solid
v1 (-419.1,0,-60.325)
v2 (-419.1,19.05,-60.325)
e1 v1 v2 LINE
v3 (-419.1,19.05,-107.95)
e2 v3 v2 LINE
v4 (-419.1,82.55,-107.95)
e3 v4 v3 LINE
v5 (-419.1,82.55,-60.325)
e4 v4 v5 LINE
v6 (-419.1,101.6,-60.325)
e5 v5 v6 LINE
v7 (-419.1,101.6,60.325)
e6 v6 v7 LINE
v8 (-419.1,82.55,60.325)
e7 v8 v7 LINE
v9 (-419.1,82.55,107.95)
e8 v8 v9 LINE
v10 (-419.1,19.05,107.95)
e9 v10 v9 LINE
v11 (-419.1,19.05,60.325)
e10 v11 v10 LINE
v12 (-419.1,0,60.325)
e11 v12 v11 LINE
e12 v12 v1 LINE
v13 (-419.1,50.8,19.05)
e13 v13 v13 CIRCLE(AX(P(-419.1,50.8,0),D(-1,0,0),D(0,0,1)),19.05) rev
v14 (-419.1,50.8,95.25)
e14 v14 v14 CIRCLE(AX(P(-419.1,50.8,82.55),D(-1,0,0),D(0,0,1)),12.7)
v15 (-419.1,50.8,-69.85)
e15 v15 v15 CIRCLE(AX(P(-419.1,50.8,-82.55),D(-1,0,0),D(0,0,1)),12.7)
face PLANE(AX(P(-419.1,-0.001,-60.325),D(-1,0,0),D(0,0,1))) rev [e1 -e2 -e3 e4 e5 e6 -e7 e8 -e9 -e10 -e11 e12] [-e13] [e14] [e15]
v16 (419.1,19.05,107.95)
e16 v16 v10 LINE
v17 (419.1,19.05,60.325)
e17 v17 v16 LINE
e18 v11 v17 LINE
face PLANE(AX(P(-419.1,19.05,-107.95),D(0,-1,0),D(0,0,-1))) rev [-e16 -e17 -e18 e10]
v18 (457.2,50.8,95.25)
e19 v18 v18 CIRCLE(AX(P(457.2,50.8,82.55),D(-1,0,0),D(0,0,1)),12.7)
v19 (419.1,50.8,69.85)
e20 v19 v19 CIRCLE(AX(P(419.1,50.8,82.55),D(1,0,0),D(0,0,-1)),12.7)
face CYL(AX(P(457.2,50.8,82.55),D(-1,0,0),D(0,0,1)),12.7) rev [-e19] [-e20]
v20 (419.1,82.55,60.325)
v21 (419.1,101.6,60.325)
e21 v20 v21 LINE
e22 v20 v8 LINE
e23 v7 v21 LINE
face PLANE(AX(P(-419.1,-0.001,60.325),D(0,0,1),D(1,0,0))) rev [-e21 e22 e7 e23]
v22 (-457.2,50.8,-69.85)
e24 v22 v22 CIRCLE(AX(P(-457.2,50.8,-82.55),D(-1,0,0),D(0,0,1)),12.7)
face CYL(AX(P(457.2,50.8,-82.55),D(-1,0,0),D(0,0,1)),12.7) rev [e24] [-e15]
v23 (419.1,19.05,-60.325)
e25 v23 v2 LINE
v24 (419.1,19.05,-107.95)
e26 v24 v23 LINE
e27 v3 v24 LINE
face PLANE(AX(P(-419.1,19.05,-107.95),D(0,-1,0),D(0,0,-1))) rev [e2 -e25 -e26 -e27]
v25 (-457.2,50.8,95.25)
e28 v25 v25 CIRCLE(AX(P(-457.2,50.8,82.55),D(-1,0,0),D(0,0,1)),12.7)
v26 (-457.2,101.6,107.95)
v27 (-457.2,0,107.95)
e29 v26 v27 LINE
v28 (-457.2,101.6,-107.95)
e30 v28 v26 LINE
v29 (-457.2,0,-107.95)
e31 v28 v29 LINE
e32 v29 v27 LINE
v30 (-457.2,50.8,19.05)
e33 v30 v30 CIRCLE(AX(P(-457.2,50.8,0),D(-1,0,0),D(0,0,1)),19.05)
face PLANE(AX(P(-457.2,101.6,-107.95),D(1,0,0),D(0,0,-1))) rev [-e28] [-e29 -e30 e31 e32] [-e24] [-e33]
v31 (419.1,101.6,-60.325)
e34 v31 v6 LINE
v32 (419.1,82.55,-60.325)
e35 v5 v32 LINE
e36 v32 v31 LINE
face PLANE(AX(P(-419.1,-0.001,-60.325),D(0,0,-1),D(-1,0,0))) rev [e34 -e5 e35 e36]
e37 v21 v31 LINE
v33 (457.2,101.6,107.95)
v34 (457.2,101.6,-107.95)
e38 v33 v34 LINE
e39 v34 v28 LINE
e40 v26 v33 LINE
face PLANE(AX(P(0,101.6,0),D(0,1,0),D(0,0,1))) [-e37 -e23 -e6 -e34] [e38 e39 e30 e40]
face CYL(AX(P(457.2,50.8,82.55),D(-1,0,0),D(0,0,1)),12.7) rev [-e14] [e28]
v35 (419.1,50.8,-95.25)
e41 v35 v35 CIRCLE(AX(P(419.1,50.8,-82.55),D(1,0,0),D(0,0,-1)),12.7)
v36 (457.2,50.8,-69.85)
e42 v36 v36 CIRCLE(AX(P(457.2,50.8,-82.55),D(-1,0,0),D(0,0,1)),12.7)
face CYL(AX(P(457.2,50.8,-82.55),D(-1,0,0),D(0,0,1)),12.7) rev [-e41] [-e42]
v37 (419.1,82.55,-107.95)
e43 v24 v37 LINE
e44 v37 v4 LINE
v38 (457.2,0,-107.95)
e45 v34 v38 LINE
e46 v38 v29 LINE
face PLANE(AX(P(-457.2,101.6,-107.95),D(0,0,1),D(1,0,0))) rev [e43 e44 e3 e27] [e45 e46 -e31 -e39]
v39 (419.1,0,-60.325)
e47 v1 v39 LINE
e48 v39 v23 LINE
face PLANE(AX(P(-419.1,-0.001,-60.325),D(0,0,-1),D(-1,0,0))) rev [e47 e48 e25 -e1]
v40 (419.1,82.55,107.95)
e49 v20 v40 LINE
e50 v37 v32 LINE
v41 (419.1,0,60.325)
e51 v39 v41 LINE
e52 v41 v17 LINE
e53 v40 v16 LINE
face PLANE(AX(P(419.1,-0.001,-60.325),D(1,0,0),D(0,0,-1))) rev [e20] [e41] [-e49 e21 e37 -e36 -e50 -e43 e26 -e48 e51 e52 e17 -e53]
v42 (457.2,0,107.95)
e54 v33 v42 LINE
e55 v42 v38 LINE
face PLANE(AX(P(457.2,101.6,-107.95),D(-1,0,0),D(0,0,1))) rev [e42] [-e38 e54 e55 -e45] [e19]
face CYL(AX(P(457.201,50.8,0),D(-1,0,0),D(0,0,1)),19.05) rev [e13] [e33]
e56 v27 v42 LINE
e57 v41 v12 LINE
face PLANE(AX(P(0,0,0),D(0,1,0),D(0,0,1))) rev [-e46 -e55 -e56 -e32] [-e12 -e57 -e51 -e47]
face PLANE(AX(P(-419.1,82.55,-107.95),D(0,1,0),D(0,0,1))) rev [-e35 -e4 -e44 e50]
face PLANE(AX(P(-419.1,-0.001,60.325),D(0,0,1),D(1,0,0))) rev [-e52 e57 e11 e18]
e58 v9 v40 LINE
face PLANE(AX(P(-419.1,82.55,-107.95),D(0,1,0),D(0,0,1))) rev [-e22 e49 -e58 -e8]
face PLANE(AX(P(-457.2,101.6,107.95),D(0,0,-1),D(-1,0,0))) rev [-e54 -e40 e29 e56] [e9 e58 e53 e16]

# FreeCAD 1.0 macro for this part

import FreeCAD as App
import Part
import Sketcher

V = App.Vector
Q = App.Units.Quantity


def add_polygon(sketch, points):
    """Adds a closed chain of lines whose ends are joined by coincident constraints."""
    first, n = sketch.GeometryCount, len(points)
    for a, b in zip(points, points[1:] + points[:1]):
        sketch.addGeometry(Part.LineSegment(App.Vector(*a, 0), App.Vector(*b, 0)), False)
    for i in range(n):
        sketch.addConstraint(Sketcher.Constraint("Coincident", first + i, 2, first + (i + 1) % n, 1))

doc = App.newDocument("Part")
body = doc.addObject("PartDesign::Body", "Body")

sketch1 = body.newObject("Sketcher::SketchObject", "Sketch")
sketch1.AttachmentSupport = (doc.getObject("XZ_Plane"), [""])
sketch1.MapMode = "FlatFace"
add_polygon(sketch1, [(-457, -108), (-457, 108), (457, 108), (457, -108)])
sketch1.addConstraint([
    Sketcher.Constraint("Vertical", 0),
    Sketcher.Constraint("Horizontal", 1),
    Sketcher.Constraint("Vertical", 2),
    Sketcher.Constraint("Horizontal", 3),
    Sketcher.Constraint("Symmetric", 0, 2, 2, 2, -1, 1),
    Sketcher.Constraint("DistanceX", 1, 1, 1, 2, Q("36 in")),
    Sketcher.Constraint("DistanceY", 0, 1, 0, 2, Q("8.5 in")),
])
pad1 = body.newObject("PartDesign::Pad", "Pad")
pad1.Profile = sketch1
pad1.Length = Q("4 in")
pad1.Reversed = True

sketch2 = body.newObject("Sketcher::SketchObject", "Sketch001")
sketch2.AttachmentSupport = (doc.getObject("XZ_Plane"), [""])
sketch2.MapMode = "FlatFace"
sketch2.AttachmentOffset = App.Placement(V(0, 0, -4 * 25.4), App.Rotation())
add_polygon(sketch2, [(-419, -60), (-419, 60), (419, 60), (419, -60)])
sketch2.addConstraint([
    Sketcher.Constraint("Vertical", 0),
    Sketcher.Constraint("Horizontal", 1),
    Sketcher.Constraint("Vertical", 2),
    Sketcher.Constraint("Horizontal", 3),
    Sketcher.Constraint("Symmetric", 0, 2, 2, 2, -1, 1),
    Sketcher.Constraint("DistanceX", 1, 1, 1, 2, Q("33 in")),
    Sketcher.Constraint("DistanceY", 0, 1, 0, 2, Q("4.75 in")),
])
pocket1 = body.newObject("PartDesign::Pocket", "Pocket")
pocket1.Profile = sketch2
pocket1.Type = "UpToFirst"
pocket1.Reversed = True

sketch3 = body.newObject("Sketcher::SketchObject", "Sketch002")
sketch3.AttachmentSupport = (doc.getObject("XY_Plane"), [""])
sketch3.MapMode = "FlatFace"
sketch3.AttachmentOffset = App.Placement(V(0, 0, 4.25 * 25.4), App.Rotation())
add_polygon(sketch3, [(-419, 83), (-419, 19), (419, 19), (419, 83)])
sketch3.addConstraint([
    Sketcher.Constraint("Vertical", 0),
    Sketcher.Constraint("Horizontal", 1),
    Sketcher.Constraint("Vertical", 2),
    Sketcher.Constraint("Horizontal", 3),
    Sketcher.Constraint("DistanceX", 1, 1, 1, 2, Q("33 in")),
    Sketcher.Constraint("DistanceY", 0, 2, 0, 1, Q("2.5 in")),
    Sketcher.Constraint("DistanceX", 0, 2, -1, 1, Q("16.5 in")),
    Sketcher.Constraint("DistanceY", -1, 1, 0, 2, Q("0.75 in")),
])
pocket2 = body.newObject("PartDesign::Pocket", "Pocket001")
pocket2.Profile = sketch3
pocket2.Type = "ThroughAll"
pocket2.Midplane = True

sketch4 = body.newObject("Sketcher::SketchObject", "Sketch003")
sketch4.AttachmentSupport = (doc.getObject("YZ_Plane"), [""])
sketch4.MapMode = "FlatFace"
sketch4.AttachmentOffset = App.Placement(V(0, 0, -18 * 25.4), App.Rotation())
sketch4.addGeometry([
    Part.Circle(V(51, 83, 0), V(0, 0, 1), 13),
    Part.Circle(V(51, -83, 0), V(0, 0, 1), 13),
], False)
sketch4.addConstraint([
    Sketcher.Constraint("Equal", 0, 1),
    Sketcher.Constraint("Symmetric", 0, 3, 1, 3, -1),
    Sketcher.Constraint("Diameter", 0, Q("1 in")),
    Sketcher.Constraint("DistanceX", -1, 1, 0, 3, Q("2 in")),
    Sketcher.Constraint("DistanceY", 1, 3, 0, 3, Q("6.5 in")),
])
pocket3 = body.newObject("PartDesign::Pocket", "Pocket002")
pocket3.Profile = sketch4
pocket3.Type = "ThroughAll"
pocket3.Midplane = True

sketch5 = body.newObject("Sketcher::SketchObject", "Sketch004")
sketch5.AttachmentSupport = (doc.getObject("YZ_Plane"), [""])
sketch5.MapMode = "FlatFace"
sketch5.AttachmentOffset = App.Placement(V(0, 0, -18 * 25.4), App.Rotation())
sketch5.addGeometry(Part.Circle(V(51, 0, 0), V(0, 0, 1), 19), False)
sketch5.addConstraint([
    Sketcher.Constraint("PointOnObject", 0, 3, -1),
    Sketcher.Constraint("Diameter", 0, Q("1.5 in")),
    Sketcher.Constraint("DistanceX", -1, 1, 0, 3, Q("2 in")),
])
pocket4 = body.newObject("PartDesign::Pocket", "Pocket003")
pocket4.Profile = sketch5
pocket4.Type = "UpToFirst"
pocket4.Reversed = True

doc.recompute()
